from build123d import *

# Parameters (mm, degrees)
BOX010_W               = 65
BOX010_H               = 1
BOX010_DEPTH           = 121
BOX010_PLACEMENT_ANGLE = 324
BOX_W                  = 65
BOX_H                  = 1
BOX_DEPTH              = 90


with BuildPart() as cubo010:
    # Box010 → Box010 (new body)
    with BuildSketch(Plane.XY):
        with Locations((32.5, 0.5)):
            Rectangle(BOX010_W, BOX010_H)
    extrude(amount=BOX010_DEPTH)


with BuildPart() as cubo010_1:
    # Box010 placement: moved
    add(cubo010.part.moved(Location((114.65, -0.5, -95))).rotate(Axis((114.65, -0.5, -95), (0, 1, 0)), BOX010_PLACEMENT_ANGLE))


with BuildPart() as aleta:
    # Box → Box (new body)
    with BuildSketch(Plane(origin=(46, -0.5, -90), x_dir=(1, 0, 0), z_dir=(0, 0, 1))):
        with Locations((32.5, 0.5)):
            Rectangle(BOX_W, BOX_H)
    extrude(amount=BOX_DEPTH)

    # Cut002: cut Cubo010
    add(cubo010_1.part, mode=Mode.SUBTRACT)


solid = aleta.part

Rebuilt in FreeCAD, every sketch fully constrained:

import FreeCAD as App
import Part
import Sketcher
from FreeCAD import Vector
Q = App.Units.Quantity


def add_polygon(sketch, points):
    """Adds a closed chain of lines whose ends are joined by coincident constraints."""
    first, n = sketch.GeometryCount, len(points)
    for a, b in zip(points, points[1:] + points[:1]):
        sketch.addGeometry(Part.LineSegment(App.Vector(*a, 0), App.Vector(*b, 0)), False)
    for i in range(n):
        sketch.addConstraint(Sketcher.Constraint("Coincident", first + i, 2, first + (i + 1) % n, 1))

doc = App.newDocument("Part")
body = doc.addObject("PartDesign::Body", "Body")

sketch1 = body.newObject("Sketcher::SketchObject", "Sketch")
sketch1.AttachmentSupport = (doc.getObject("XY_Plane"), [""])
sketch1.MapMode = "FlatFace"
add_polygon(sketch1, [(0, 1), (0, 0), (65, 0), (65, 1)])
sketch1.addConstraint(Sketcher.Constraint("Vertical", 0))
sketch1.addConstraint(Sketcher.Constraint("Horizontal", 1))
sketch1.addConstraint(Sketcher.Constraint("Vertical", 2))
sketch1.addConstraint(Sketcher.Constraint("Horizontal", 3))
sketch1.addConstraint(Sketcher.Constraint("Coincident", 0, 2, -1, 1))
sketch1.addConstraint(Sketcher.Constraint("DistanceX", 1, 1, 1, 2, Q("65 mm")))
sketch1.addConstraint(Sketcher.Constraint("DistanceY", 0, 2, 0, 1, Q("1 mm")))
pad1 = body.newObject("PartDesign::Pad", "Pad")
pad1.Profile = sketch1
pad1.Length = 121
body2 = doc.addObject("PartDesign::Body", "Body001")
doc.recompute()

body.Placement = App.Placement(Vector(114.65, -0.5, -95), App.Rotation(Vector(0, 1, 0), 324))
boolean = body2.newObject("PartDesign::Boolean", "Boolean")
boolean.Type = "Fuse"
boolean.addObjects([body])
body3 = doc.addObject("PartDesign::Body", "Body002")

sketch2 = body3.newObject("Sketcher::SketchObject", "Sketch001")
sketch2.AttachmentSupport = (doc.getObject("XY_Plane002"), [""])
sketch2.MapMode = "FlatFace"
sketch2.AttachmentOffset = App.Placement(Vector(0, 0, -90), App.Rotation())
add_polygon(sketch2, [(46, 0.5), (46, -0.5), (111, -0.5), (111, 0.5)])
sketch2.addConstraint(Sketcher.Constraint("Vertical", 0))
sketch2.addConstraint(Sketcher.Constraint("Horizontal", 1))
sketch2.addConstraint(Sketcher.Constraint("Vertical", 2))
sketch2.addConstraint(Sketcher.Constraint("Horizontal", 3))
sketch2.addConstraint(Sketcher.Constraint("DistanceX", 1, 1, 1, 2, Q("65 mm")))
sketch2.addConstraint(Sketcher.Constraint("DistanceY", 0, 2, 0, 1, Q("1 mm")))
sketch2.addConstraint(Sketcher.Constraint("DistanceX", -1, 1, 0, 2, Q("46 mm")))
sketch2.addConstraint(Sketcher.Constraint("DistanceY", 0, 2, -1, 1, Q("0.5 mm")))
pad2 = body3.newObject("PartDesign::Pad", "Pad001")
pad2.Profile = sketch2
pad2.Length = 90
doc.recompute()

boolean2 = body3.newObject("PartDesign::Boolean", "Boolean001")
boolean2.Type = "Cut"
boolean2.addObjects([body2])

doc.recompute()
